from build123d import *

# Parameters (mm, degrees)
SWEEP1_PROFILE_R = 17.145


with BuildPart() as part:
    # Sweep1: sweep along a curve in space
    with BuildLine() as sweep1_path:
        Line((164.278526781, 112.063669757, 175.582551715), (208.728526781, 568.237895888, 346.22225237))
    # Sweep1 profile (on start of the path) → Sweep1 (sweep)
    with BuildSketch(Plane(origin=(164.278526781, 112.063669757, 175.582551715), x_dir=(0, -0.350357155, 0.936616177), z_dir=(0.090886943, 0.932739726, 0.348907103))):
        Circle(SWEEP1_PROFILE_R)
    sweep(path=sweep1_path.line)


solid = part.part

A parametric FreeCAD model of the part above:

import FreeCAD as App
import Part
import Sketcher
from FreeCAD import Vector
Q = App.Units.Quantity

doc = App.newDocument("Part")
body = doc.addObject("PartDesign::Body", "Body")

sketch1 = doc.addObject("Sketcher::SketchObject", "Sketch")
body.addObject(sketch1)
sketch1.Placement = App.Placement(Vector(164.278527, 112.06367, 175.582552), App.Rotation(Vector(0, -0.350357155, 0.936616177), Vector(0.995861216, -0.085126181, -0.031842891), Vector(0.090886943, 0.932739726, 0.348907103), "ZXY"))
sketch1.addGeometry(Part.Circle(Vector(0, 0, 0), Vector(0, 0, 1), 17), False)
sketch1.addConstraint([
    Sketcher.Constraint("Coincident", 0, 3, -1, 1),
    Sketcher.Constraint("Diameter", 0, Q("1.35 in")),
])

sketch2 = doc.addObject("Sketcher::SketchObject", "Sketch001")
body.addObject(sketch2)
sketch2.Placement = App.Placement(Vector(0, -43.861615, 117.256056), App.Rotation(Vector(0, 0.936616177, 0.350357155), Vector(0.999999999, 0, 0), Vector(0, 0.350357155, -0.936616177), "ZXY"))
sketch2.addGeometry(Part.LineSegment(Vector(166, 164, 0), Vector(654, 209, 0)), False)
sketch2.addConstraint([
    Sketcher.Constraint("DistanceY", 0, 1, 0, 2, Q("1.75 in")),
    Sketcher.Constraint("DistanceX", 0, 1, 0, 2, Q("19.175 in")),
    Sketcher.Constraint("DistanceX", -1, 1, 0, 1, Q("166.477249 mm")),
    Sketcher.Constraint("DistanceY", -1, 1, 0, 1, Q("164.278526 mm")),
])
doc.recompute()

additivepipe = doc.addObject("PartDesign::AdditivePipe", "AdditivePipe")
body.addObject(additivepipe)
additivepipe.Profile = sketch1
additivepipe.Spine = (sketch2, ["Edge1"])

doc.recompute()
